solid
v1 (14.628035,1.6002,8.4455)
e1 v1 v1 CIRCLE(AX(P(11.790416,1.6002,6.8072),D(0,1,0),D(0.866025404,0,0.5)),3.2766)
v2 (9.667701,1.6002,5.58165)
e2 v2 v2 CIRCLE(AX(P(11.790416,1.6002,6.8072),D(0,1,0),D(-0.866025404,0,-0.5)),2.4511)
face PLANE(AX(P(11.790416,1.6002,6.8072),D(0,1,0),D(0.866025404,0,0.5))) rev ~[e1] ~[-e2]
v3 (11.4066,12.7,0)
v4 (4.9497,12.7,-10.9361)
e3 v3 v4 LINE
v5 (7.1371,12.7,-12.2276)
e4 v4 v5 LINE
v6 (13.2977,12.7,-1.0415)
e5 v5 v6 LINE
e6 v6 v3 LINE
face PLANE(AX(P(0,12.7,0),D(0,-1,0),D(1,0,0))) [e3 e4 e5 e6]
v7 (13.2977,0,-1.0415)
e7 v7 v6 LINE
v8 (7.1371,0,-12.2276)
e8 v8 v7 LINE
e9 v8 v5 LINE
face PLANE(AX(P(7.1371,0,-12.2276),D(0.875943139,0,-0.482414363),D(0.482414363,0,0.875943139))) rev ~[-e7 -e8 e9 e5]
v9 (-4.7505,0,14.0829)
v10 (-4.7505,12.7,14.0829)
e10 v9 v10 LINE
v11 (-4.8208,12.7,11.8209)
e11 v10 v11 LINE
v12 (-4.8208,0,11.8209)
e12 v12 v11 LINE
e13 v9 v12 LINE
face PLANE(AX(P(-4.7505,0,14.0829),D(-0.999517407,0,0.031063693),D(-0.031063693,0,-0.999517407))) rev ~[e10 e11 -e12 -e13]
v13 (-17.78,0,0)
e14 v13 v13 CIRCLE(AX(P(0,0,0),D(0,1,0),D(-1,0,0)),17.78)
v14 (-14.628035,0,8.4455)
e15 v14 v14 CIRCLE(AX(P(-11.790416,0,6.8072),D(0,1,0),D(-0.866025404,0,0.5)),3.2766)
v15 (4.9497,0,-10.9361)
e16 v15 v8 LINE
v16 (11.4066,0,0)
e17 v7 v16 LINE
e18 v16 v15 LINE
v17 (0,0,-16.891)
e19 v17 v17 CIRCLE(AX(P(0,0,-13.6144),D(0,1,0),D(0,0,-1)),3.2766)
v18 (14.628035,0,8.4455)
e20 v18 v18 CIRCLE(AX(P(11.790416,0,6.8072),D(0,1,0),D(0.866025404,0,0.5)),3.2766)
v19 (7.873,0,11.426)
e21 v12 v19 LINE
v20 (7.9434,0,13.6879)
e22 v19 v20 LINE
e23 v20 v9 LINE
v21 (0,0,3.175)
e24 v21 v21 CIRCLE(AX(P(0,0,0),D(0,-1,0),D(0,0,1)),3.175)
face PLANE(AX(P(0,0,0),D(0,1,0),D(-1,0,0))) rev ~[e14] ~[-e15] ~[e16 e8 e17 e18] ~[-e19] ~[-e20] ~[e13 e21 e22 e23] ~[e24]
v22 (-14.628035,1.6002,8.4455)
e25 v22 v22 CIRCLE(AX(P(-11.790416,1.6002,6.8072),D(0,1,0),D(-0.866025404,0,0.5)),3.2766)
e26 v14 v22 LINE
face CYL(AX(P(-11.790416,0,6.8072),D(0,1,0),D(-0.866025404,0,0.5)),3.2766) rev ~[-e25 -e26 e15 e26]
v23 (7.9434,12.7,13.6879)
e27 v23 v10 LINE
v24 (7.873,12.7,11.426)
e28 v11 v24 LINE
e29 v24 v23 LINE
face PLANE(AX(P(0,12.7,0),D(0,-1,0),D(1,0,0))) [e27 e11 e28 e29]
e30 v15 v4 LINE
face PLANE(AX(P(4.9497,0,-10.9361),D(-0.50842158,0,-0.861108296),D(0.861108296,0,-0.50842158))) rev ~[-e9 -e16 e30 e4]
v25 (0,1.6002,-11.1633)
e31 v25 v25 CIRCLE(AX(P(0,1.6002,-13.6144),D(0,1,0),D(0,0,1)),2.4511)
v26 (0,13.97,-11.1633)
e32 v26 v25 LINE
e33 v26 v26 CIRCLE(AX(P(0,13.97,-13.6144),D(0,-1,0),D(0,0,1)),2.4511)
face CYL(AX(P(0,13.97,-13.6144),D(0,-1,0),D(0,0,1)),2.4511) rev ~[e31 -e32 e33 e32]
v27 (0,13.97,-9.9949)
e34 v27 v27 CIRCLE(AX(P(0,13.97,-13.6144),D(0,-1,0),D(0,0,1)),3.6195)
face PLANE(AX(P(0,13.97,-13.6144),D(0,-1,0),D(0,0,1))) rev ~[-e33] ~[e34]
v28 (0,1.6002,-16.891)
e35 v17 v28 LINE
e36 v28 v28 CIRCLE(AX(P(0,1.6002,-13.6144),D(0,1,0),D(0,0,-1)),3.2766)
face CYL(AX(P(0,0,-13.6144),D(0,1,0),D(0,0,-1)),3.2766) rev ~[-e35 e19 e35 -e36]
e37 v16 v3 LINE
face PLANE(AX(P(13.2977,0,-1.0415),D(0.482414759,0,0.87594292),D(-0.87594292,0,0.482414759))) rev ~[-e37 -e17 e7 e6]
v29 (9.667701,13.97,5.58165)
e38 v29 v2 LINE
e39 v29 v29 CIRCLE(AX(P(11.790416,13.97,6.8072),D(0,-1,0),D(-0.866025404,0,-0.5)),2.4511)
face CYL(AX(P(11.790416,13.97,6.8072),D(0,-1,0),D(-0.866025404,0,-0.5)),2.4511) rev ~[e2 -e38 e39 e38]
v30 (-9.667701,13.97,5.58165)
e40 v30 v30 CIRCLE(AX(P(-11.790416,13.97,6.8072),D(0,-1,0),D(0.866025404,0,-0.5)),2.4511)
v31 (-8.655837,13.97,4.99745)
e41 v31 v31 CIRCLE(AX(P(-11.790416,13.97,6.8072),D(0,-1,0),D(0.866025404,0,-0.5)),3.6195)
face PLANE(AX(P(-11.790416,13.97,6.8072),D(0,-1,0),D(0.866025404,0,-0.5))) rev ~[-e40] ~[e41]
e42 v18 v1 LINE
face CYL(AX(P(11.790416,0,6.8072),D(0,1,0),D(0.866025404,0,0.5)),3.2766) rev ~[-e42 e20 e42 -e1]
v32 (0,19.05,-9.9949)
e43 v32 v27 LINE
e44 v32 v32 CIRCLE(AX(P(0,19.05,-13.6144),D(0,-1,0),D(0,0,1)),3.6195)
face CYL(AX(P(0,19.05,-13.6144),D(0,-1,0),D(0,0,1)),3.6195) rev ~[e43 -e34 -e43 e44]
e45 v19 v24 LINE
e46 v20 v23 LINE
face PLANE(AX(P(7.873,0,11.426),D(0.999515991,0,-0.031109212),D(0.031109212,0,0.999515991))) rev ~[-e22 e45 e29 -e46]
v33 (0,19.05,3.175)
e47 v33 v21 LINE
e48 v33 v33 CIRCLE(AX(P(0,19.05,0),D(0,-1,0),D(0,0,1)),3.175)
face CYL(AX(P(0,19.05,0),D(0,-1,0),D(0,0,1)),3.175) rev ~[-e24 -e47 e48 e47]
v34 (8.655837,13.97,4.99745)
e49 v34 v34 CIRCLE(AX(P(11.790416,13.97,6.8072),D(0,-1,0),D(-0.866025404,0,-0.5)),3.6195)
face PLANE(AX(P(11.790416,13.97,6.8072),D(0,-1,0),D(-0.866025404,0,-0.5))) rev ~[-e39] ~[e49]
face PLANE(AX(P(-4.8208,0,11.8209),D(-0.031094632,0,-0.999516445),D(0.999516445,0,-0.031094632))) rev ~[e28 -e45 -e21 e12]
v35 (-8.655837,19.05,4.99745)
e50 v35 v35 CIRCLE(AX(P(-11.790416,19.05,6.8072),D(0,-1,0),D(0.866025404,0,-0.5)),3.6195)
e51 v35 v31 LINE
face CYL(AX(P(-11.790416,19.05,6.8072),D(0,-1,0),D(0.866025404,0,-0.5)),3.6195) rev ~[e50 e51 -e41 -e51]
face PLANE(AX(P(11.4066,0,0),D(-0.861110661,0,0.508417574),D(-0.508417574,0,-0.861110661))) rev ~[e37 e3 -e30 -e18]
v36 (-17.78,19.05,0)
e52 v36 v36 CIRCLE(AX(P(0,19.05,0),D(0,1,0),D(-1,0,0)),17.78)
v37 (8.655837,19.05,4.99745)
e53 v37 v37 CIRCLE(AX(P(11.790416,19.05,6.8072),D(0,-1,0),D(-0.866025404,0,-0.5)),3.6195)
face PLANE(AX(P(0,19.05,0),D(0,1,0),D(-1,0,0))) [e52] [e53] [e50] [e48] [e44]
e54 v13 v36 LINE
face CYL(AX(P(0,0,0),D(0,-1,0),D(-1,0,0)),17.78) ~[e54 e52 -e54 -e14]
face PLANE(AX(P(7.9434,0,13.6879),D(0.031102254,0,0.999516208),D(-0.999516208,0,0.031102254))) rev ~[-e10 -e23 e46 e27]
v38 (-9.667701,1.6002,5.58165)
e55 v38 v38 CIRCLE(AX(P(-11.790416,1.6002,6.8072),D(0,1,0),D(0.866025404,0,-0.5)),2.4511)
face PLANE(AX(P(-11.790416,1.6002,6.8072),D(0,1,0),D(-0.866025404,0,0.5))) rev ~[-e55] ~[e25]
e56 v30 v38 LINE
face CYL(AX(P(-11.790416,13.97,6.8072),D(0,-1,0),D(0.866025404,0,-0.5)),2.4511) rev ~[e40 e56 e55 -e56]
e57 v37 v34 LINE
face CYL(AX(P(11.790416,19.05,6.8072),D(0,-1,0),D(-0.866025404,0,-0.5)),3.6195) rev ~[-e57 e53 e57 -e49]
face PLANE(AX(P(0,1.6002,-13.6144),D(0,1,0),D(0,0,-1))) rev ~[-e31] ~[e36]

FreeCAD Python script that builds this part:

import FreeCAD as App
import Part
import Sketcher
from FreeCAD import Vector
Q = App.Units.Quantity

doc = App.newDocument("Part")
params = doc.addObject("Spreadsheet::Sheet", "Params")
for row, (alias, value) in enumerate([
    ("sketch1_diameter", "1.4 in"),
    ("pad1_length", "0.75 in"),
    ("sketch2_diameter", "0.193 in"),
    ("hole_diameter", "0.193 in"),
    ("hole_cbore_diameter", "0.285 in"),
    ("hole_cbore_depth", "0.2 in"),
    ("sketch3_diameter", "0.193 in"),
    ("hole2_diameter", "0.193 in"),
    ("hole2_depth", "0.25 in"),
    ("hole2_cbore_diameter", "0.258 in"),
    ("hole2_cbore_depth", "0.063 in"),
    ("sketch4_diameter", "0.25 in"),
    ("hole3_diameter", "0.25 in"),
    ("sketch5_length", "0.5 in"),
    ("sketch5_length2", "0.5 in"),
    ("sketch5_length3", "0.5 in"),
    ("sketch5_length4", "0.1 in"),
    ("sketch5_length5", "0.085 in"),
    ("pocket1_length", "0.5 in"),
], start=1):
    params.set(f"A{row}", alias)
    params.set(f"B{row}", "=" + value)
    params.setAlias(f"B{row}", alias)

body = doc.addObject("PartDesign::Body", "Body")

# Sketch on XZ plane
sketch1 = doc.addObject("Sketcher::SketchObject", "Sketch")
body.addObject(sketch1)
sketch1.AttachmentSupport = (doc.XZ_Plane, [""])
sketch1.MapMode = "FlatFace"
sketch1.addGeometry(Part.Circle(Vector(0, 0, 0), Vector(0, 0, 1), 17.78), False)
sketch1.addConstraint([
    Sketcher.Constraint("Coincident", 0, 3, -1, 1),
    Sketcher.Constraint("Diameter", 0, Q("1.4 in")),
])
sketch1.setExpression("Constraints[1]", "Params.sketch1_diameter")
pad1 = doc.addObject("PartDesign::Pad", "Pad")
body.addObject(pad1)
pad1.Profile = sketch1
pad1.setExpression("Length", "Params.pad1_length")
pad1.Reversed = True

# Sketch on XZ plane
sketch2 = doc.addObject("Sketcher::SketchObject", "Sketch001")
body.addObject(sketch2)
sketch2.AttachmentSupport = (doc.XZ_Plane, [""])
sketch2.MapMode = "FlatFace"
sketch2.AttachmentOffset = App.Placement(Vector(0, 0, -0.75 * 25.4), App.Rotation())
sketch2.addGeometry(Part.Circle(Vector(0, -13.6144, 0), Vector(0, 0, 1), 2.4511), False)
sketch2.addConstraint([
    Sketcher.Constraint("PointOnObject", 0, 3, -2),
    Sketcher.Constraint("Diameter", 0, Q("0.193 in")),
    Sketcher.Constraint("DistanceY", 0, 3, -1, 1, Q("0.536 in")),
])
sketch2.setExpression("Constraints[1]", "Params.sketch2_diameter")
doc.recompute()
hole = doc.addObject("PartDesign::Hole", "Hole")
body.addObject(hole)
hole.Profile = sketch2
hole.ThreadType = "None"
hole.setExpression("Diameter", "Params.hole_diameter")
hole.DepthType = "ThroughAll"
hole.HoleCutType = "Counterbore"
hole.setExpression("HoleCutDiameter", "Params.hole_cbore_diameter")
hole.setExpression("HoleCutDepth", "Params.hole_cbore_depth")
hole.Reversed = True

# Sketch on XZ plane
sketch3 = doc.addObject("Sketcher::SketchObject", "Sketch002")
body.addObject(sketch3)
sketch3.AttachmentSupport = (doc.XZ_Plane, [""])
sketch3.MapMode = "FlatFace"
sketch3.addGeometry(Part.Circle(Vector(0, -13.6144, 0), Vector(0, 0, 1), 2.4511), False)
sketch3.addConstraint([
    Sketcher.Constraint("PointOnObject", 0, 3, -2),
    Sketcher.Constraint("Diameter", 0, Q("0.193 in")),
    Sketcher.Constraint("DistanceY", 0, 3, -1, 1, Q("0.536 in")),
])
sketch3.setExpression("Constraints[1]", "Params.sketch3_diameter")
doc.recompute()
hole2 = doc.addObject("PartDesign::Hole", "Hole001")
body.addObject(hole2)
hole2.Profile = sketch3
hole2.ThreadType = "None"
hole2.setExpression("Diameter", "Params.hole2_diameter")
hole2.DepthType = "Dimension"
hole2.setExpression("Depth", "Params.hole2_depth")
hole2.DrillPoint = "Flat"
hole2.HoleCutType = "Counterbore"
hole2.setExpression("HoleCutDiameter", "Params.hole2_cbore_diameter")
hole2.setExpression("HoleCutDepth", "Params.hole2_cbore_depth")
doc.recompute()

polarpattern = doc.addObject("PartDesign::PolarPattern", "PolarPattern")
body.addObject(polarpattern)
polarpattern.Originals = [hole, hole2]
polarpattern.Axis = (doc.Y_Axis, [""])
polarpattern.Angle = 360
polarpattern.Occurrences = 3
body.Tip = polarpattern

# Sketch on XZ plane
sketch4 = doc.addObject("Sketcher::SketchObject", "Sketch003")
body.addObject(sketch4)
sketch4.AttachmentSupport = (doc.XZ_Plane, [""])
sketch4.MapMode = "FlatFace"
sketch4.AttachmentOffset = App.Placement(Vector(0, 0, -0.75 * 25.4), App.Rotation())
sketch4.addGeometry(Part.Circle(Vector(0, 0, 0), Vector(0, 0, 1), 3.175), False)
sketch4.addConstraint([
    Sketcher.Constraint("Coincident", 0, 3, -1, 1),
    Sketcher.Constraint("Diameter", 0, Q("0.25 in")),
])
sketch4.setExpression("Constraints[1]", "Params.sketch4_diameter")
doc.recompute()
hole3 = doc.addObject("PartDesign::Hole", "Hole002")
body.addObject(hole3)
hole3.Profile = sketch4
hole3.ThreadType = "None"
hole3.setExpression("Diameter", "Params.hole3_diameter")
hole3.DepthType = "ThroughAll"
hole3.Reversed = True

# Sketch on XZ plane
sketch5 = doc.addObject("Sketcher::SketchObject", "Sketch004")
body.addObject(sketch5)
sketch5.AttachmentSupport = (doc.XZ_Plane, [""])
sketch5.MapMode = "FlatFace"
sketch5.addGeometry([
    Part.LineSegment(Vector(7.873, 11.426, 0), Vector(7.9434, 13.6879, 0)),  # 0
    Part.LineSegment(Vector(7.9434, 13.6879, 0), Vector(-4.7505, 14.0829, 0)),  # 1
    Part.LineSegment(Vector(-4.7505, 14.0829, 0), Vector(-4.8208, 11.8209, 0)),  # 2
    Part.LineSegment(Vector(-4.8208, 11.8209, 0), Vector(7.873, 11.426, 0)),  # 3
    Part.LineSegment(Vector(13.2977, -1.0415, 0), Vector(11.4066, 0, 0)),  # 4
    Part.LineSegment(Vector(11.4066, 0, 0), Vector(4.9497, -10.9361, 0)),  # 5
    Part.LineSegment(Vector(4.9497, -10.9361, 0), Vector(7.1371, -12.2276, 0)),  # 6
    Part.LineSegment(Vector(7.1371, -12.2276, 0), Vector(13.2977, -1.0415, 0)),  # 7
], False)
sketch5.addConstraint([
    Sketcher.Constraint("Coincident", 0, 2, 1, 1),
    Sketcher.Constraint("Coincident", 1, 2, 2, 1),
    Sketcher.Constraint("Coincident", 2, 2, 3, 1),
    Sketcher.Constraint("Coincident", 3, 2, 0, 1),
    Sketcher.Constraint("Coincident", 4, 2, 5, 1),
    Sketcher.Constraint("Coincident", 5, 2, 6, 1),
    Sketcher.Constraint("Coincident", 6, 2, 7, 1),
    Sketcher.Constraint("Coincident", 7, 2, 4, 1),
    Sketcher.Constraint("PointOnObject", 4, 2, -1),
    Sketcher.Constraint("Distance", 1, Q("0.5 in")),
    Sketcher.Constraint("Distance", 3, Q("0.5 in")),
    Sketcher.Constraint("Distance", 5, Q("0.5 in")),
    Sketcher.Constraint("Distance", 6, Q("0.1 in")),
    Sketcher.Constraint("Distance", 4, Q("0.085 in")),
    Sketcher.Constraint("DistanceX", -1, 1, 6, 2, Q("0.281 in")),
    Sketcher.Constraint("DistanceY", 7, 2, -1, 1, Q("0.041 in")),
    Sketcher.Constraint("DistanceX", 1, 2, 3, 2, Q("0.497 in")),
    Sketcher.Constraint("DistanceY", 5, 2, 1, 2, Q("0.985 in")),
    Sketcher.Constraint("Distance", 0, Q("0.0891 in")),
    Sketcher.Constraint("Distance", 2, Q("0.0891 in")),
    Sketcher.Constraint("DistanceY", -1, 1, 0, 2, Q("0.5389 in")),
    Sketcher.Constraint("DistanceX", 2, 2, -1, 1, Q("0.1898 in")),
    Sketcher.Constraint("DistanceY", -1, 1, 2, 2, Q("0.4654 in")),
    Sketcher.Constraint("DistanceY", 6, 2, -1, 1, Q("0.4814 in")),
])
sketch5.setExpression("Constraints[9]", "Params.sketch5_length")
sketch5.setExpression("Constraints[10]", "Params.sketch5_length2")
sketch5.setExpression("Constraints[11]", "Params.sketch5_length3")
sketch5.setExpression("Constraints[12]", "Params.sketch5_length4")
sketch5.setExpression("Constraints[13]", "Params.sketch5_length5")
pocket1 = doc.addObject("PartDesign::Pocket", "Pocket")
body.addObject(pocket1)
pocket1.Profile = sketch5
pocket1.setExpression("Length", "Params.pocket1_length")

doc.recompute()
